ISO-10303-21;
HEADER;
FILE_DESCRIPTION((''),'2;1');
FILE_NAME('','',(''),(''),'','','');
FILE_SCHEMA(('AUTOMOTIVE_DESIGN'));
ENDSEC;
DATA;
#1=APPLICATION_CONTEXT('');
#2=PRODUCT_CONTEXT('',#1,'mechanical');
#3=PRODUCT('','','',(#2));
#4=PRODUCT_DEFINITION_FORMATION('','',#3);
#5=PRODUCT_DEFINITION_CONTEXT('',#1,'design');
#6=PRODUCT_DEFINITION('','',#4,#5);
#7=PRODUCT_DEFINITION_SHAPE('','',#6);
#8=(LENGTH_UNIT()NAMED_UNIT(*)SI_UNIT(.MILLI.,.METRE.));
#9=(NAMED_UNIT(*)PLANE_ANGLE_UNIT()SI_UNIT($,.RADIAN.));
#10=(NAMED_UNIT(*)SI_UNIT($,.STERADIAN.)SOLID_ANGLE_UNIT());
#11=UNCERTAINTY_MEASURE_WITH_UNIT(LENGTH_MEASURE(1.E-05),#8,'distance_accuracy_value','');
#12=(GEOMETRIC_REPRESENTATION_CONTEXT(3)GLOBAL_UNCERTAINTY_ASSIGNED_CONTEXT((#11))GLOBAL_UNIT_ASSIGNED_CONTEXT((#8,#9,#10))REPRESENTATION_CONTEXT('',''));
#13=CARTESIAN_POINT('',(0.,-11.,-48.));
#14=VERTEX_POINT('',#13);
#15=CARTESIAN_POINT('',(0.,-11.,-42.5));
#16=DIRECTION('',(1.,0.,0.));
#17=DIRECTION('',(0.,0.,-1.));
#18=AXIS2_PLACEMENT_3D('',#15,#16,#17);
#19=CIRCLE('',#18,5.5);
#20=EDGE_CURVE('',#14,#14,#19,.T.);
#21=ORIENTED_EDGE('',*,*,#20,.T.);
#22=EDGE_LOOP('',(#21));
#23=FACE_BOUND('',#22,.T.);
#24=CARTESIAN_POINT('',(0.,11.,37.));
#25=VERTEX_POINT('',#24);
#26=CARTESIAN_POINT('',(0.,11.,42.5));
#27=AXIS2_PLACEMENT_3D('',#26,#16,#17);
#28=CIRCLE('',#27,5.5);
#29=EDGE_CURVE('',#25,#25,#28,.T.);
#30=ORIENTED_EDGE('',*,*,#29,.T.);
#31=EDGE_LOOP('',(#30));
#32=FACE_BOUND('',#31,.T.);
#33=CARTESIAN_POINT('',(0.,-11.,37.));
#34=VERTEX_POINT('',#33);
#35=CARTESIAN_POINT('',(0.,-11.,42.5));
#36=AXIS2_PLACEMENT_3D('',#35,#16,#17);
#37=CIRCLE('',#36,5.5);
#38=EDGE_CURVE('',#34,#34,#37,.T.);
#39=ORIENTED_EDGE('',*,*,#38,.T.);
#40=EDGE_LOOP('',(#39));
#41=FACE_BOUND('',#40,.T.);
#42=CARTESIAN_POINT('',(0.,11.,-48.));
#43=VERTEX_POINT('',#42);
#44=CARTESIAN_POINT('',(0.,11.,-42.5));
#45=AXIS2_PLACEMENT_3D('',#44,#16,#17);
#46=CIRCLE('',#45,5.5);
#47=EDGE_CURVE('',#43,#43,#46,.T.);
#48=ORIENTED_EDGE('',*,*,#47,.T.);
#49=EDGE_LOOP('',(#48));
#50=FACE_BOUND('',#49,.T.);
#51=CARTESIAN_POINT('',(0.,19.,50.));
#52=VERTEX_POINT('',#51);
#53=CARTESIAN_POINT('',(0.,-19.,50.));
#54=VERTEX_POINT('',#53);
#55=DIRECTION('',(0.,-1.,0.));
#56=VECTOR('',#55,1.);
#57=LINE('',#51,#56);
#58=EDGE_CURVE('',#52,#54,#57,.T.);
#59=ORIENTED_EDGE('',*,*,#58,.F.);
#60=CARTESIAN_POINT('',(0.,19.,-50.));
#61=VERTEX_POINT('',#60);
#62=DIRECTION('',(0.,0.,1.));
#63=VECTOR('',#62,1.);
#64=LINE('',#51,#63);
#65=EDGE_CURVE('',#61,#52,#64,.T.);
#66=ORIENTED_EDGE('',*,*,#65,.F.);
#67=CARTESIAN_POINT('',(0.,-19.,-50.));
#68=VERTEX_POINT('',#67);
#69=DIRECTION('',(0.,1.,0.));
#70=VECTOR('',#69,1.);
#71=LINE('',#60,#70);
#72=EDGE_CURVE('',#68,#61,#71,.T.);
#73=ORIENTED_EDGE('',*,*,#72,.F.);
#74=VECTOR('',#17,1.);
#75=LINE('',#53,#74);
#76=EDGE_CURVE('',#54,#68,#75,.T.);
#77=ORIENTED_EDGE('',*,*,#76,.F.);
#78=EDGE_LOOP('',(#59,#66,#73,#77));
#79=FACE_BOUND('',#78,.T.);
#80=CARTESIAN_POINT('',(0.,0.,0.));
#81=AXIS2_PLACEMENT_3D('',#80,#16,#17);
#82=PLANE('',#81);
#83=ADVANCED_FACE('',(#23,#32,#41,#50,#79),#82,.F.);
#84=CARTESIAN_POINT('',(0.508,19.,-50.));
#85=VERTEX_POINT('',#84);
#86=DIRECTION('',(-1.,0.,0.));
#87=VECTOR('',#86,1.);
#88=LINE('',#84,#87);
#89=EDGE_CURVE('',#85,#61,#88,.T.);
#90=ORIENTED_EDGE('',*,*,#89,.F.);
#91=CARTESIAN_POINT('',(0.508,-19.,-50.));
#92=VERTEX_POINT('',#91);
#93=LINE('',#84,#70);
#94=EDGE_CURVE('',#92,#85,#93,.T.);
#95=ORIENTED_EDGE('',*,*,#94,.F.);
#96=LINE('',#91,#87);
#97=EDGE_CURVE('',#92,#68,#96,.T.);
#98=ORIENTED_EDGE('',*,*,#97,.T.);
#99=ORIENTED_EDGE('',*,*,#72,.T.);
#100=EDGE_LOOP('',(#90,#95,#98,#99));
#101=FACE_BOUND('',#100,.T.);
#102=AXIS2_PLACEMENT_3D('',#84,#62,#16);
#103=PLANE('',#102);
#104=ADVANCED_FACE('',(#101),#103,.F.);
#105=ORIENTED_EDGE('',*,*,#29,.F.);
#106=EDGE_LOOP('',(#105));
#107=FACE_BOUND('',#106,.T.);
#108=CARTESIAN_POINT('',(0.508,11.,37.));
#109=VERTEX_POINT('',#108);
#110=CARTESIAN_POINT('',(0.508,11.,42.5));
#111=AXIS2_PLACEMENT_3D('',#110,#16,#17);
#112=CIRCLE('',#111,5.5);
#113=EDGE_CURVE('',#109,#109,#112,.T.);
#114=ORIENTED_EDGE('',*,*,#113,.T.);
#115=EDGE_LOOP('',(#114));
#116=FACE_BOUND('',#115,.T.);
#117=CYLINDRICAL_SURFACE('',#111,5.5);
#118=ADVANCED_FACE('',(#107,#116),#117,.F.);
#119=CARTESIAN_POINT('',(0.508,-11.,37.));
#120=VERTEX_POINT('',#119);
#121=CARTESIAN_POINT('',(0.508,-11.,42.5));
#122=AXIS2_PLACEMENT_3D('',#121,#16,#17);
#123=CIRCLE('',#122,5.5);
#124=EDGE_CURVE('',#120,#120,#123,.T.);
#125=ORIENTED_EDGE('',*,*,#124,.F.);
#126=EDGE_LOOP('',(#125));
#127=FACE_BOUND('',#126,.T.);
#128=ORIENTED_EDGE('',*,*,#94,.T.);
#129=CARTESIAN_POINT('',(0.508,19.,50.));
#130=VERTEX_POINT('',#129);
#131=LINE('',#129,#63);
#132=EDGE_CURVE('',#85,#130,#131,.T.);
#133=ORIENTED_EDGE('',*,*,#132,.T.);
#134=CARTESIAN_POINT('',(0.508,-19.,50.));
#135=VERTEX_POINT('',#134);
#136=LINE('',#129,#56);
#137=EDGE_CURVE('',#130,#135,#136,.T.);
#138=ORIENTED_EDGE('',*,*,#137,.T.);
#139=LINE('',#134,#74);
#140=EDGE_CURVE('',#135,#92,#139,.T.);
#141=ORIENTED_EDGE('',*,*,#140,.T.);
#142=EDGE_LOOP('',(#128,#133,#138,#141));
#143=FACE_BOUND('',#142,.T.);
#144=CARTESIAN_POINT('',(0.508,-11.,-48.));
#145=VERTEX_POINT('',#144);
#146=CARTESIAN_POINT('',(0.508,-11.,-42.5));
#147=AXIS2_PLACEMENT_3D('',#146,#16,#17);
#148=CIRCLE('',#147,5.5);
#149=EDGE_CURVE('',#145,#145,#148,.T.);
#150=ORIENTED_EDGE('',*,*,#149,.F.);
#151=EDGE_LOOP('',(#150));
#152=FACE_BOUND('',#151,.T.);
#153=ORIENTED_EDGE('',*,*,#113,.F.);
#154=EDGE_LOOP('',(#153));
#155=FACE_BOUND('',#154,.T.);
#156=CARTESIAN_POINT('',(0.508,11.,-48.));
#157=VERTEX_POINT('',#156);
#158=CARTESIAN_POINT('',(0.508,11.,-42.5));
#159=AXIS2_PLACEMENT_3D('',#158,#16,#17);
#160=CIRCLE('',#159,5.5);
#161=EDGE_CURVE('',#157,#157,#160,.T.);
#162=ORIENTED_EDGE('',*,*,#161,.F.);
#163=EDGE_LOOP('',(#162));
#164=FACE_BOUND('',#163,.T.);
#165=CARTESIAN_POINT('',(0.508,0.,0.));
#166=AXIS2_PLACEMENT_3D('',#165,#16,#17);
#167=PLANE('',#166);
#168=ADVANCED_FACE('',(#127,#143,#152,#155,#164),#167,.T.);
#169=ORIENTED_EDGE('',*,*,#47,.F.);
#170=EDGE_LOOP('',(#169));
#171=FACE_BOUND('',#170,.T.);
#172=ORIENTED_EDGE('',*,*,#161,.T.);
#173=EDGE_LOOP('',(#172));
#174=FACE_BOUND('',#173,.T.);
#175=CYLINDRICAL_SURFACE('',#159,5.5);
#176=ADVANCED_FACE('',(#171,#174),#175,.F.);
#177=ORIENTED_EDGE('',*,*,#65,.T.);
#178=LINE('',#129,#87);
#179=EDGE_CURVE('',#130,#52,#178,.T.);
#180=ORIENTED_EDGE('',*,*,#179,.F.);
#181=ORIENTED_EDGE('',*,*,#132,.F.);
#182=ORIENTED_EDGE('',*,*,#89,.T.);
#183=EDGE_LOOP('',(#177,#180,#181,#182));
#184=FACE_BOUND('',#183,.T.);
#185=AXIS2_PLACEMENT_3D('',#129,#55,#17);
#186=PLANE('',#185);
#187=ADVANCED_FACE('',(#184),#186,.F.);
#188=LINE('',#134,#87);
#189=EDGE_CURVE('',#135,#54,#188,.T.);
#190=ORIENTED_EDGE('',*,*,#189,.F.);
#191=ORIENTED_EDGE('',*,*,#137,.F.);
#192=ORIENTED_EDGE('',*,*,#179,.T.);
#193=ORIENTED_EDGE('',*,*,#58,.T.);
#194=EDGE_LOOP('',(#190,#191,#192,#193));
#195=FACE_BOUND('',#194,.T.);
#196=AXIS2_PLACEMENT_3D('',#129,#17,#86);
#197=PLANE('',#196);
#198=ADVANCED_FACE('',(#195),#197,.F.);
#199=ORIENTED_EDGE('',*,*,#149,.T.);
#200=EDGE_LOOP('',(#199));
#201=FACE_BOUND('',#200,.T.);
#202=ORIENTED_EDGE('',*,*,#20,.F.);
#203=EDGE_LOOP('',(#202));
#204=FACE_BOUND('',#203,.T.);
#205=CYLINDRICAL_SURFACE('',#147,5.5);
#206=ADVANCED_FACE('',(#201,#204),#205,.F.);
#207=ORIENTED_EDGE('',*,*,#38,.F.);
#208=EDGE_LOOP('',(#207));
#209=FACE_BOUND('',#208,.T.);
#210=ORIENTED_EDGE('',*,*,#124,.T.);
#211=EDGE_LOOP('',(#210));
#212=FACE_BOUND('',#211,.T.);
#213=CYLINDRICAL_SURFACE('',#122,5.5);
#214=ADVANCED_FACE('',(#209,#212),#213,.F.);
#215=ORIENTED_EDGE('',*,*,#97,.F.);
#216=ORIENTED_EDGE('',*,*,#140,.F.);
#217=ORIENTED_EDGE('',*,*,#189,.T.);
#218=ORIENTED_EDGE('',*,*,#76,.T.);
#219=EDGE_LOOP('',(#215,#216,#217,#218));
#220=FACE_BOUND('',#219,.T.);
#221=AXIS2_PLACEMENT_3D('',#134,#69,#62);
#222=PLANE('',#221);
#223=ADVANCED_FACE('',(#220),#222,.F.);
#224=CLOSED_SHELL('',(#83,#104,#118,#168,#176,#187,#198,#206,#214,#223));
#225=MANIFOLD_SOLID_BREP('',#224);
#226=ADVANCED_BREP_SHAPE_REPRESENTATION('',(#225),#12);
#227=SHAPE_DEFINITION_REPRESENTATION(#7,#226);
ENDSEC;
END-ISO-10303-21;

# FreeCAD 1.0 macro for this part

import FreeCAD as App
import Part
import Sketcher

doc = App.newDocument("Part")
body = doc.addObject("PartDesign::Body", "Body")

# Sketch on YZ plane
sketch1 = doc.addObject("Sketcher::SketchObject", "Sketch")
body.addObject(sketch1)
sketch1.AttachmentSupport = (doc.YZ_Plane, [""])
sketch1.MapMode = "FlatFace"
sketch1.addGeometry([
    Part.LineSegment(App.Vector(19, 50, 0), App.Vector(-19, 50, 0)),
    Part.LineSegment(App.Vector(-19, 50, 0), App.Vector(-19, -50, 0)),
    Part.LineSegment(App.Vector(-19, -50, 0), App.Vector(19, -50, 0)),
    Part.LineSegment(App.Vector(19, -50, 0), App.Vector(19, 50, 0)),
], False)
sketch1.addConstraint([
    Sketcher.Constraint("Coincident", 0, 2, 1, 1),
    Sketcher.Constraint("Coincident", 1, 2, 2, 1),
    Sketcher.Constraint("Coincident", 2, 2, 3, 1),
    Sketcher.Constraint("Coincident", 3, 2, 0, 1),
    Sketcher.Constraint("Horizontal", 0),
    Sketcher.Constraint("Vertical", 1),
    Sketcher.Constraint("Horizontal", 2),
    Sketcher.Constraint("Vertical", 3),
    Sketcher.Constraint("Symmetric", 0, 2, 2, 2, -1, 1),
    Sketcher.Constraint("DistanceX", 0, 2, 0, 1, 38.0),
    Sketcher.Constraint("DistanceY", 1, 2, 1, 1, 100.0),
])
pad1 = doc.addObject("PartDesign::Pad", "Pad")
body.addObject(pad1)
pad1.Profile = sketch1
pad1.Length = 0.508

# Sketch on YZ plane
sketch2 = doc.addObject("Sketcher::SketchObject", "Sketch001")
body.addObject(sketch2)
sketch2.AttachmentSupport = (doc.YZ_Plane, [""])
sketch2.MapMode = "FlatFace"
sketch2.AttachmentOffset = App.Placement(App.Vector(0, 0, 0.508), App.Rotation())
sketch2.addGeometry([
    Part.Circle(App.Vector(11, 42, 0), App.Vector(0, 0, 1), 6),
    Part.Circle(App.Vector(-11, 42, 0), App.Vector(0, 0, 1), 6),
    Part.Circle(App.Vector(11, -42, 0), App.Vector(0, 0, 1), 6),
    Part.Circle(App.Vector(-11, -42, 0), App.Vector(0, 0, 1), 6),
], False)
sketch2.addConstraint([
    Sketcher.Constraint("Equal", 0, 1),
    Sketcher.Constraint("Equal", 1, 2),
    Sketcher.Constraint("Equal", 2, 3),
    Sketcher.Constraint("Symmetric", 1, 3, 2, 3, -1, 1),
    Sketcher.Constraint("Symmetric", 0, 3, 3, 3, -1, 1),
    Sketcher.Constraint("Symmetric", 0, 3, 1, 3, -2),
    Sketcher.Constraint("Diameter", 0, 11.0),
    Sketcher.Constraint("DistanceX", -1, 1, 0, 3, 11.0),
    Sketcher.Constraint("DistanceY", 2, 3, 0, 3, 85.0),
])
doc.recompute()
hole = doc.addObject("PartDesign::Hole", "Hole")
body.addObject(hole)
hole.Profile = sketch2
hole.ThreadType = "None"
hole.Diameter = 11
hole.DepthType = "ThroughAll"

doc.recompute()
